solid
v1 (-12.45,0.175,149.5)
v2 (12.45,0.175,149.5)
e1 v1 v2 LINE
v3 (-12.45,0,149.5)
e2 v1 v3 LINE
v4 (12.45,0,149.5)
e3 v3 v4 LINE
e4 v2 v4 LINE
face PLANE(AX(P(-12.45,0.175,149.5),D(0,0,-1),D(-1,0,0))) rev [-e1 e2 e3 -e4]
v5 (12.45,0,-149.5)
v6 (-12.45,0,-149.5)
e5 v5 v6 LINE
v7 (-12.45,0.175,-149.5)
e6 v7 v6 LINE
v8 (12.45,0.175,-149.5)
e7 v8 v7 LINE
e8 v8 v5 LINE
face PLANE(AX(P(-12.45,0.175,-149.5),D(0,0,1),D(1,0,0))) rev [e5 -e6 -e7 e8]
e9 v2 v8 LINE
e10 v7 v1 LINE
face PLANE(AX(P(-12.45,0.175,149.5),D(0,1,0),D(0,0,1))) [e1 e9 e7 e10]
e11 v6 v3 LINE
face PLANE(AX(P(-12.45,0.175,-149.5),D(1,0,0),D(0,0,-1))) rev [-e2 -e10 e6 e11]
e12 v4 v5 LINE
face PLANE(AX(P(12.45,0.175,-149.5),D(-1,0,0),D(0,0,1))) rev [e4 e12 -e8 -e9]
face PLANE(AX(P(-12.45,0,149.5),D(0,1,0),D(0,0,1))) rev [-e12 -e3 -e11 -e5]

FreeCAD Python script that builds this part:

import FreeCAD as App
import Part
import Sketcher
Q = App.Units.Quantity

doc = App.newDocument("Part")
params = doc.addObject("Spreadsheet::Sheet", "Params")
for row, (alias, value) in enumerate([
    ("sketch1_height", "299 mm"),
    ("sketch1_width", "24.9 mm"),
    ("pad1_length", "0.175 mm"),
], start=1):
    params.set(f"A{row}", alias)
    params.set(f"B{row}", "=" + value)
    params.setAlias(f"B{row}", alias)

body = doc.addObject("PartDesign::Body", "Body")

sketch1 = body.newObject("Sketcher::SketchObject", "Sketch")
sketch1.AttachmentSupport = (doc.getObject("XZ_Plane"), [""])
sketch1.MapMode = "FlatFace"
sketch1.addGeometry(Part.LineSegment(App.Vector(-12, -150, 0), App.Vector(-12, 150, 0)), False)
sketch1.addGeometry(Part.LineSegment(App.Vector(-12, 150, 0), App.Vector(12, 150, 0)), False)
sketch1.addGeometry(Part.LineSegment(App.Vector(12, 150, 0), App.Vector(12, -150, 0)), False)
sketch1.addGeometry(Part.LineSegment(App.Vector(12, -150, 0), App.Vector(-12, -150, 0)), False)
sketch1.addConstraint(Sketcher.Constraint("Coincident", 0, 2, 1, 1))
sketch1.addConstraint(Sketcher.Constraint("Coincident", 1, 2, 2, 1))
sketch1.addConstraint(Sketcher.Constraint("Coincident", 2, 2, 3, 1))
sketch1.addConstraint(Sketcher.Constraint("Coincident", 3, 2, 0, 1))
sketch1.addConstraint(Sketcher.Constraint("Vertical", 0))
sketch1.addConstraint(Sketcher.Constraint("Horizontal", 1))
sketch1.addConstraint(Sketcher.Constraint("Vertical", 2))
sketch1.addConstraint(Sketcher.Constraint("Horizontal", 3))
sketch1.addConstraint(Sketcher.Constraint("Symmetric", 0, 2, 2, 2, -1, 1))
sketch1.addConstraint(Sketcher.Constraint("DistanceY", 0, 1, 0, 2, Q("299 mm")))
sketch1.addConstraint(Sketcher.Constraint("DistanceX", 1, 1, 1, 2, Q("24.9 mm")))
sketch1.setExpression("Constraints[9]", "Params.sketch1_height")
sketch1.setExpression("Constraints[10]", "Params.sketch1_width")
pad1 = body.newObject("PartDesign::Pad", "Pad")
pad1.Profile = sketch1
pad1.setExpression("Length", "Params.pad1_length")
pad1.Reversed = True

doc.recompute()
